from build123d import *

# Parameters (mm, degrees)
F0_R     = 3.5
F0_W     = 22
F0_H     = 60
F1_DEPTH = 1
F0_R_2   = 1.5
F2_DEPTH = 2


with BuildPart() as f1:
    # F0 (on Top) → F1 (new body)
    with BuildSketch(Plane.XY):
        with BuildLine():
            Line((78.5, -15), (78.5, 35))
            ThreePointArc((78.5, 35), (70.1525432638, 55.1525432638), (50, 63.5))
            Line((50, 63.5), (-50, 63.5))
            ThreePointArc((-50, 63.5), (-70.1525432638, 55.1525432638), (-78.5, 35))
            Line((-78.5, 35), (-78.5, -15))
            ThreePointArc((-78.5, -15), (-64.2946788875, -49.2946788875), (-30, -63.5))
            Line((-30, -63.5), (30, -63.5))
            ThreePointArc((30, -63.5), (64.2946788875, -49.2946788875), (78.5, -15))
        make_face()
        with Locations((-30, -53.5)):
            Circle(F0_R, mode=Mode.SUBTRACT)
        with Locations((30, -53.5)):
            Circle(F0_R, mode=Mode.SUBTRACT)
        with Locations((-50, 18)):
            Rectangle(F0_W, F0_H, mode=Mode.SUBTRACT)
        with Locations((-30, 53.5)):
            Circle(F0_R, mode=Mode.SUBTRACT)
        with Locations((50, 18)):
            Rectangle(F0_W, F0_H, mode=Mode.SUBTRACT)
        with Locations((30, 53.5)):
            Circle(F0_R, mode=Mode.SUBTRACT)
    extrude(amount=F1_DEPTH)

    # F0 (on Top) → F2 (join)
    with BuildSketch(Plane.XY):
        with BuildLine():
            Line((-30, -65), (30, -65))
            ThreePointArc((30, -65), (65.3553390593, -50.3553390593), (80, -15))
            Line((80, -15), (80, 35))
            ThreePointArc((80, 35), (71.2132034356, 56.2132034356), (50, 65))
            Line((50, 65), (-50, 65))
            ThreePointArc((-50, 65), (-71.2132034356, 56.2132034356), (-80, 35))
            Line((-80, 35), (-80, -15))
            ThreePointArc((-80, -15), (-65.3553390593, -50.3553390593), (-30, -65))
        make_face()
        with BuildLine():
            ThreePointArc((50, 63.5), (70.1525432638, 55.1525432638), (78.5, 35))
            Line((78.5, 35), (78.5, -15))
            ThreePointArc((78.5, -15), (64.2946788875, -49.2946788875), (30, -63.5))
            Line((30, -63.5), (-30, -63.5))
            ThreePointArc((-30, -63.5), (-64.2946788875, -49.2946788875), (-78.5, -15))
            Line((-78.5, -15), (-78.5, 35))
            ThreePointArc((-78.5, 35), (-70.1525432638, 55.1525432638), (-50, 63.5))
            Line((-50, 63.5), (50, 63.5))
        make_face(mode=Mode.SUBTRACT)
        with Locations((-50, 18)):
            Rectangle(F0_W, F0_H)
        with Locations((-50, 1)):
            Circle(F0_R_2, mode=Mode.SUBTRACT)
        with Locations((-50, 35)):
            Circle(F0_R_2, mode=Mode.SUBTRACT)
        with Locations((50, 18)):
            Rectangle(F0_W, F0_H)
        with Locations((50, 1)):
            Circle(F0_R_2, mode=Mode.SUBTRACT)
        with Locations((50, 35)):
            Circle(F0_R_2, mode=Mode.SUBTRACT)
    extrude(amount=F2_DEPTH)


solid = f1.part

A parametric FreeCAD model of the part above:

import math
import FreeCAD as App
import Part
import Sketcher
from FreeCAD import Vector
Q = App.Units.Quantity


def add_polygon(sketch, points):
    """Adds a closed chain of lines whose ends are joined by coincident constraints."""
    first, n = sketch.GeometryCount, len(points)
    for a, b in zip(points, points[1:] + points[:1]):
        sketch.addGeometry(Part.LineSegment(App.Vector(*a, 0), App.Vector(*b, 0)), False)
    for i in range(n):
        sketch.addConstraint(Sketcher.Constraint("Coincident", first + i, 2, first + (i + 1) % n, 1))

doc = App.newDocument("Part")
body = doc.addObject("PartDesign::Body", "Body")

sketch1 = doc.addObject("Sketcher::SketchObject", "Sketch")
body.addObject(sketch1)
sketch1.AttachmentSupport = (doc.XY_Plane, [""])
sketch1.MapMode = "FlatFace"
sketch1.addGeometry(Part.LineSegment(Vector(78.5, -15, 0), Vector(78.5, 35, 0)), False)
sketch1.addGeometry(Part.ArcOfCircle(Part.Circle(Vector(50, 35, 0), Vector(0, 0, 1), 28.5), math.radians(0), math.radians(90)), False)
sketch1.addGeometry(Part.LineSegment(Vector(50, 63.5, 0), Vector(-50, 63.5, 0)), False)
sketch1.addGeometry(Part.ArcOfCircle(Part.Circle(Vector(-50, 35, 0), Vector(0, 0, 1), 28.5), math.radians(90), math.radians(180)), False)
sketch1.addGeometry(Part.LineSegment(Vector(-78.5, 35, 0), Vector(-78.5, -15, 0)), False)
sketch1.addGeometry(Part.ArcOfCircle(Part.Circle(Vector(-30, -15, 0), Vector(0, 0, 1), 48.5), math.radians(180), math.radians(270)), False)
sketch1.addGeometry(Part.LineSegment(Vector(-30, -63.5, 0), Vector(30, -63.5, 0)), False)
sketch1.addGeometry(Part.ArcOfCircle(Part.Circle(Vector(30, -15, 0), Vector(0, 0, 1), 48.5), math.radians(-90), math.radians(0)), False)
sketch1.addGeometry(Part.Circle(Vector(-30, -53.5, 0), Vector(0, 0, 1), 3.5), False)
sketch1.addGeometry(Part.Circle(Vector(30, -53.5, 0), Vector(0, 0, 1), 3.5), False)
add_polygon(sketch1, [(-39, -12), (-61, -12), (-61, 48), (-39, 48)])
sketch1.addGeometry(Part.Circle(Vector(-30, 53.5, 0), Vector(0, 0, 1), 3.5), False)
add_polygon(sketch1, [(61, -12), (39, -12), (39, 48), (61, 48)])
sketch1.addGeometry(Part.Circle(Vector(30, 53.5, 0), Vector(0, 0, 1), 3.5), False)
sketch1.addConstraint([
    Sketcher.Constraint("Tangent", 0, 2, 1, 1),
    Sketcher.Constraint("Tangent", 1, 2, 2, 1),
    Sketcher.Constraint("Tangent", 2, 2, 3, 1),
    Sketcher.Constraint("Tangent", 3, 2, 4, 1),
    Sketcher.Constraint("Tangent", 4, 2, 5, 1),
    Sketcher.Constraint("Tangent", 5, 2, 6, 1),
    Sketcher.Constraint("Tangent", 6, 2, 7, 1),
    Sketcher.Constraint("Tangent", 7, 2, 0, 1),
    Sketcher.Constraint("Vertical", 0),
    Sketcher.Constraint("Horizontal", 2),
    Sketcher.Constraint("Vertical", 4),
    Sketcher.Constraint("Horizontal", 6),
    Sketcher.Constraint("Horizontal", 10),
    Sketcher.Constraint("Vertical", 11),
    Sketcher.Constraint("Horizontal", 12),
    Sketcher.Constraint("Vertical", 13),
    Sketcher.Constraint("Horizontal", 15),
    Sketcher.Constraint("Vertical", 16),
    Sketcher.Constraint("Horizontal", 17),
    Sketcher.Constraint("Vertical", 18),
    Sketcher.Constraint("Equal", 1, 3),
    Sketcher.Constraint("Equal", 5, 7),
    Sketcher.Constraint("Equal", 8, 9),
    Sketcher.Constraint("Equal", 9, 14),
    Sketcher.Constraint("Equal", 14, 19),
    Sketcher.Constraint("Symmetric", 9, 3, 14, 3, -1, 1),
    Sketcher.Constraint("Symmetric", 8, 3, 19, 3, -1, 1),
    Sketcher.Constraint("Symmetric", 8, 3, 9, 3, -2),
    Sketcher.Constraint("Symmetric", 13, 2, 15, 2, -2),
    Sketcher.Constraint("Symmetric", 11, 2, 17, 2, -2),
    Sketcher.Constraint("Vertical", 5, 3, 8, 3),
    Sketcher.Constraint("Vertical", 7, 3, 9, 3),
    Sketcher.Constraint("Equal", 6, 11),
    Sketcher.Constraint("Diameter", 8, Q("7 mm")),
    Sketcher.Constraint("Radius", 1, Q("28.5 mm")),
    Sketcher.Constraint("Radius", 5, Q("48.5 mm")),
    Sketcher.Constraint("DistanceX", 2, 2, 2, 1, Q("100 mm")),
    Sketcher.Constraint("DistanceX", 10, 2, 10, 1, Q("22 mm")),
    Sketcher.Constraint("DistanceY", 0, 1, 0, 2, Q("50 mm")),
    Sketcher.Constraint("DistanceY", -1, 1, 1, 3, Q("35 mm")),
    Sketcher.Constraint("DistanceX", 10, 2, -1, 1, Q("61 mm")),
    Sketcher.Constraint("DistanceY", 10, 2, -1, 1, Q("12 mm")),
    Sketcher.Constraint("DistanceY", 8, 3, 14, 3, Q("107 mm")),
])
pad1 = doc.addObject("PartDesign::Pad", "Pad")
body.addObject(pad1)
pad1.Profile = sketch1
pad1.Length = 1

sketch2 = doc.addObject("Sketcher::SketchObject", "Sketch001")
body.addObject(sketch2)
sketch2.AttachmentSupport = (doc.XY_Plane, [""])
sketch2.MapMode = "FlatFace"
sketch2.addGeometry(Part.LineSegment(Vector(-30, -65, 0), Vector(30, -65, 0)), False)
sketch2.addGeometry(Part.ArcOfCircle(Part.Circle(Vector(30, -15, 0), Vector(0, 0, 1), 50), math.radians(-90), math.radians(0)), False)
sketch2.addGeometry(Part.LineSegment(Vector(80, -15, 0), Vector(80, 35, 0)), False)
sketch2.addGeometry(Part.ArcOfCircle(Part.Circle(Vector(50, 35, 0), Vector(0, 0, 1), 30), math.radians(0), math.radians(90)), False)
sketch2.addGeometry(Part.LineSegment(Vector(50, 65, 0), Vector(-50, 65, 0)), False)
sketch2.addGeometry(Part.ArcOfCircle(Part.Circle(Vector(-50, 35, 0), Vector(0, 0, 1), 30), math.radians(90), math.radians(180)), False)
sketch2.addGeometry(Part.LineSegment(Vector(-80, 35, 0), Vector(-80, -15, 0)), False)
sketch2.addGeometry(Part.ArcOfCircle(Part.Circle(Vector(-30, -15, 0), Vector(0, 0, 1), 50), math.radians(180), math.radians(270)), False)
sketch2.addGeometry(Part.LineSegment(Vector(-50, 63.5, 0), Vector(50, 63.5, 0)), False)
sketch2.addGeometry(Part.ArcOfCircle(Part.Circle(Vector(50, 35, 0), Vector(0, 0, 1), 28.5), math.radians(0), math.radians(90)), False)
sketch2.addGeometry(Part.LineSegment(Vector(78.5, 35, 0), Vector(78.5, -15, 0)), False)
sketch2.addGeometry(Part.ArcOfCircle(Part.Circle(Vector(30, -15, 0), Vector(0, 0, 1), 48.5), math.radians(-90), math.radians(0)), False)
sketch2.addGeometry(Part.LineSegment(Vector(30, -63.5, 0), Vector(-30, -63.5, 0)), False)
sketch2.addGeometry(Part.ArcOfCircle(Part.Circle(Vector(-30, -15, 0), Vector(0, 0, 1), 48.5), math.radians(180), math.radians(270)), False)
sketch2.addGeometry(Part.LineSegment(Vector(-78.5, -15, 0), Vector(-78.5, 35, 0)), False)
sketch2.addGeometry(Part.ArcOfCircle(Part.Circle(Vector(-50, 35, 0), Vector(0, 0, 1), 28.5), math.radians(90), math.radians(180)), False)
add_polygon(sketch2, [(-61, 48), (-61, -12), (-39, -12), (-39, 48)])
sketch2.addGeometry(Part.Circle(Vector(-50, 1, 0), Vector(0, 0, 1), 1.5), False)
sketch2.addGeometry(Part.Circle(Vector(-50, 35, 0), Vector(0, 0, 1), 1.5), False)
add_polygon(sketch2, [(39, 48), (39, -12), (61, -12), (61, 48)])
sketch2.addGeometry(Part.Circle(Vector(50, 1, 0), Vector(0, 0, 1), 1.5), False)
sketch2.addGeometry(Part.Circle(Vector(50, 35, 0), Vector(0, 0, 1), 1.5), False)
sketch2.addConstraint([
    Sketcher.Constraint("Tangent", 0, 2, 1, 1),
    Sketcher.Constraint("Tangent", 1, 2, 2, 1),
    Sketcher.Constraint("Tangent", 2, 2, 3, 1),
    Sketcher.Constraint("Tangent", 3, 2, 4, 1),
    Sketcher.Constraint("Tangent", 4, 2, 5, 1),
    Sketcher.Constraint("Tangent", 5, 2, 6, 1),
    Sketcher.Constraint("Tangent", 6, 2, 7, 1),
    Sketcher.Constraint("Tangent", 7, 2, 0, 1),
    Sketcher.Constraint("Tangent", 8, 2, 9, 2),
    Sketcher.Constraint("Tangent", 9, 1, 10, 1),
    Sketcher.Constraint("Tangent", 10, 2, 11, 2),
    Sketcher.Constraint("Tangent", 11, 1, 12, 1),
    Sketcher.Constraint("Tangent", 12, 2, 13, 2),
    Sketcher.Constraint("Tangent", 13, 1, 14, 1),
    Sketcher.Constraint("Tangent", 14, 2, 15, 2),
    Sketcher.Constraint("Tangent", 15, 1, 8, 1),
    Sketcher.Constraint("Horizontal", 0),
    Sketcher.Constraint("Vertical", 2),
    Sketcher.Constraint("Horizontal", 4),
    Sketcher.Constraint("Vertical", 6),
    Sketcher.Constraint("Horizontal", 8),
    Sketcher.Constraint("Vertical", 10),
    Sketcher.Constraint("Horizontal", 12),
    Sketcher.Constraint("Vertical", 14),
    Sketcher.Constraint("Vertical", 16),
    Sketcher.Constraint("Horizontal", 17),
    Sketcher.Constraint("Vertical", 18),
    Sketcher.Constraint("Horizontal", 19),
    Sketcher.Constraint("Vertical", 22),
    Sketcher.Constraint("Horizontal", 23),
    Sketcher.Constraint("Vertical", 24),
    Sketcher.Constraint("Horizontal", 25),
    Sketcher.Constraint("Coincident", 9, 3, 3, 3),
    Sketcher.Constraint("Coincident", 11, 3, 1, 3),
    Sketcher.Constraint("Coincident", 13, 3, 7, 3),
    Sketcher.Constraint("Coincident", 21, 3, 5, 3),
    Sketcher.Constraint("Coincident", 27, 3, 3, 3),
    Sketcher.Constraint("Equal", 3, 5),
    Sketcher.Constraint("Equal", 1, 7),
    Sketcher.Constraint("Equal", 9, 15),
    Sketcher.Constraint("Equal", 20, 21),
    Sketcher.Constraint("Equal", 21, 26),
    Sketcher.Constraint("Equal", 26, 27),
    Sketcher.Constraint("Symmetric", 20, 3, 26, 3, -2),
    Sketcher.Constraint("Symmetric", 17, 2, 22, 2, -2),
    Sketcher.Constraint("Symmetric", 19, 2, 24, 2, -2),
    Sketcher.Constraint("Vertical", 15, 3, 20, 3),
    Sketcher.Constraint("Vertical", 9, 3, 26, 3),
    Sketcher.Constraint("Equal", 12, 16),
    Sketcher.Constraint("Diameter", 20, Q("3 mm")),
    Sketcher.Constraint("Radius", 1, Q("50 mm")),
    Sketcher.Constraint("Radius", 3, Q("30 mm")),
    Sketcher.Constraint("Radius", 9, Q("28.5 mm")),
    Sketcher.Constraint("DistanceX", 0, 1, 0, 2, Q("60 mm")),
    Sketcher.Constraint("DistanceX", 17, 1, 17, 2, Q("22 mm")),
    Sketcher.Constraint("DistanceY", 2, 1, 2, 2, Q("50 mm")),
    Sketcher.Constraint("DistanceY", 1, 3, -1, 1, Q("15 mm")),
    Sketcher.Constraint("DistanceY", -1, 1, 20, 3, Q("1 mm")),
    Sketcher.Constraint("DistanceX", 16, 2, -1, 1, Q("61 mm")),
    Sketcher.Constraint("DistanceY", 16, 2, -1, 1, Q("12 mm")),
])
pad2 = doc.addObject("PartDesign::Pad", "Pad001")
body.addObject(pad2)
pad2.Profile = sketch2
pad2.Length = 2

doc.recompute()
